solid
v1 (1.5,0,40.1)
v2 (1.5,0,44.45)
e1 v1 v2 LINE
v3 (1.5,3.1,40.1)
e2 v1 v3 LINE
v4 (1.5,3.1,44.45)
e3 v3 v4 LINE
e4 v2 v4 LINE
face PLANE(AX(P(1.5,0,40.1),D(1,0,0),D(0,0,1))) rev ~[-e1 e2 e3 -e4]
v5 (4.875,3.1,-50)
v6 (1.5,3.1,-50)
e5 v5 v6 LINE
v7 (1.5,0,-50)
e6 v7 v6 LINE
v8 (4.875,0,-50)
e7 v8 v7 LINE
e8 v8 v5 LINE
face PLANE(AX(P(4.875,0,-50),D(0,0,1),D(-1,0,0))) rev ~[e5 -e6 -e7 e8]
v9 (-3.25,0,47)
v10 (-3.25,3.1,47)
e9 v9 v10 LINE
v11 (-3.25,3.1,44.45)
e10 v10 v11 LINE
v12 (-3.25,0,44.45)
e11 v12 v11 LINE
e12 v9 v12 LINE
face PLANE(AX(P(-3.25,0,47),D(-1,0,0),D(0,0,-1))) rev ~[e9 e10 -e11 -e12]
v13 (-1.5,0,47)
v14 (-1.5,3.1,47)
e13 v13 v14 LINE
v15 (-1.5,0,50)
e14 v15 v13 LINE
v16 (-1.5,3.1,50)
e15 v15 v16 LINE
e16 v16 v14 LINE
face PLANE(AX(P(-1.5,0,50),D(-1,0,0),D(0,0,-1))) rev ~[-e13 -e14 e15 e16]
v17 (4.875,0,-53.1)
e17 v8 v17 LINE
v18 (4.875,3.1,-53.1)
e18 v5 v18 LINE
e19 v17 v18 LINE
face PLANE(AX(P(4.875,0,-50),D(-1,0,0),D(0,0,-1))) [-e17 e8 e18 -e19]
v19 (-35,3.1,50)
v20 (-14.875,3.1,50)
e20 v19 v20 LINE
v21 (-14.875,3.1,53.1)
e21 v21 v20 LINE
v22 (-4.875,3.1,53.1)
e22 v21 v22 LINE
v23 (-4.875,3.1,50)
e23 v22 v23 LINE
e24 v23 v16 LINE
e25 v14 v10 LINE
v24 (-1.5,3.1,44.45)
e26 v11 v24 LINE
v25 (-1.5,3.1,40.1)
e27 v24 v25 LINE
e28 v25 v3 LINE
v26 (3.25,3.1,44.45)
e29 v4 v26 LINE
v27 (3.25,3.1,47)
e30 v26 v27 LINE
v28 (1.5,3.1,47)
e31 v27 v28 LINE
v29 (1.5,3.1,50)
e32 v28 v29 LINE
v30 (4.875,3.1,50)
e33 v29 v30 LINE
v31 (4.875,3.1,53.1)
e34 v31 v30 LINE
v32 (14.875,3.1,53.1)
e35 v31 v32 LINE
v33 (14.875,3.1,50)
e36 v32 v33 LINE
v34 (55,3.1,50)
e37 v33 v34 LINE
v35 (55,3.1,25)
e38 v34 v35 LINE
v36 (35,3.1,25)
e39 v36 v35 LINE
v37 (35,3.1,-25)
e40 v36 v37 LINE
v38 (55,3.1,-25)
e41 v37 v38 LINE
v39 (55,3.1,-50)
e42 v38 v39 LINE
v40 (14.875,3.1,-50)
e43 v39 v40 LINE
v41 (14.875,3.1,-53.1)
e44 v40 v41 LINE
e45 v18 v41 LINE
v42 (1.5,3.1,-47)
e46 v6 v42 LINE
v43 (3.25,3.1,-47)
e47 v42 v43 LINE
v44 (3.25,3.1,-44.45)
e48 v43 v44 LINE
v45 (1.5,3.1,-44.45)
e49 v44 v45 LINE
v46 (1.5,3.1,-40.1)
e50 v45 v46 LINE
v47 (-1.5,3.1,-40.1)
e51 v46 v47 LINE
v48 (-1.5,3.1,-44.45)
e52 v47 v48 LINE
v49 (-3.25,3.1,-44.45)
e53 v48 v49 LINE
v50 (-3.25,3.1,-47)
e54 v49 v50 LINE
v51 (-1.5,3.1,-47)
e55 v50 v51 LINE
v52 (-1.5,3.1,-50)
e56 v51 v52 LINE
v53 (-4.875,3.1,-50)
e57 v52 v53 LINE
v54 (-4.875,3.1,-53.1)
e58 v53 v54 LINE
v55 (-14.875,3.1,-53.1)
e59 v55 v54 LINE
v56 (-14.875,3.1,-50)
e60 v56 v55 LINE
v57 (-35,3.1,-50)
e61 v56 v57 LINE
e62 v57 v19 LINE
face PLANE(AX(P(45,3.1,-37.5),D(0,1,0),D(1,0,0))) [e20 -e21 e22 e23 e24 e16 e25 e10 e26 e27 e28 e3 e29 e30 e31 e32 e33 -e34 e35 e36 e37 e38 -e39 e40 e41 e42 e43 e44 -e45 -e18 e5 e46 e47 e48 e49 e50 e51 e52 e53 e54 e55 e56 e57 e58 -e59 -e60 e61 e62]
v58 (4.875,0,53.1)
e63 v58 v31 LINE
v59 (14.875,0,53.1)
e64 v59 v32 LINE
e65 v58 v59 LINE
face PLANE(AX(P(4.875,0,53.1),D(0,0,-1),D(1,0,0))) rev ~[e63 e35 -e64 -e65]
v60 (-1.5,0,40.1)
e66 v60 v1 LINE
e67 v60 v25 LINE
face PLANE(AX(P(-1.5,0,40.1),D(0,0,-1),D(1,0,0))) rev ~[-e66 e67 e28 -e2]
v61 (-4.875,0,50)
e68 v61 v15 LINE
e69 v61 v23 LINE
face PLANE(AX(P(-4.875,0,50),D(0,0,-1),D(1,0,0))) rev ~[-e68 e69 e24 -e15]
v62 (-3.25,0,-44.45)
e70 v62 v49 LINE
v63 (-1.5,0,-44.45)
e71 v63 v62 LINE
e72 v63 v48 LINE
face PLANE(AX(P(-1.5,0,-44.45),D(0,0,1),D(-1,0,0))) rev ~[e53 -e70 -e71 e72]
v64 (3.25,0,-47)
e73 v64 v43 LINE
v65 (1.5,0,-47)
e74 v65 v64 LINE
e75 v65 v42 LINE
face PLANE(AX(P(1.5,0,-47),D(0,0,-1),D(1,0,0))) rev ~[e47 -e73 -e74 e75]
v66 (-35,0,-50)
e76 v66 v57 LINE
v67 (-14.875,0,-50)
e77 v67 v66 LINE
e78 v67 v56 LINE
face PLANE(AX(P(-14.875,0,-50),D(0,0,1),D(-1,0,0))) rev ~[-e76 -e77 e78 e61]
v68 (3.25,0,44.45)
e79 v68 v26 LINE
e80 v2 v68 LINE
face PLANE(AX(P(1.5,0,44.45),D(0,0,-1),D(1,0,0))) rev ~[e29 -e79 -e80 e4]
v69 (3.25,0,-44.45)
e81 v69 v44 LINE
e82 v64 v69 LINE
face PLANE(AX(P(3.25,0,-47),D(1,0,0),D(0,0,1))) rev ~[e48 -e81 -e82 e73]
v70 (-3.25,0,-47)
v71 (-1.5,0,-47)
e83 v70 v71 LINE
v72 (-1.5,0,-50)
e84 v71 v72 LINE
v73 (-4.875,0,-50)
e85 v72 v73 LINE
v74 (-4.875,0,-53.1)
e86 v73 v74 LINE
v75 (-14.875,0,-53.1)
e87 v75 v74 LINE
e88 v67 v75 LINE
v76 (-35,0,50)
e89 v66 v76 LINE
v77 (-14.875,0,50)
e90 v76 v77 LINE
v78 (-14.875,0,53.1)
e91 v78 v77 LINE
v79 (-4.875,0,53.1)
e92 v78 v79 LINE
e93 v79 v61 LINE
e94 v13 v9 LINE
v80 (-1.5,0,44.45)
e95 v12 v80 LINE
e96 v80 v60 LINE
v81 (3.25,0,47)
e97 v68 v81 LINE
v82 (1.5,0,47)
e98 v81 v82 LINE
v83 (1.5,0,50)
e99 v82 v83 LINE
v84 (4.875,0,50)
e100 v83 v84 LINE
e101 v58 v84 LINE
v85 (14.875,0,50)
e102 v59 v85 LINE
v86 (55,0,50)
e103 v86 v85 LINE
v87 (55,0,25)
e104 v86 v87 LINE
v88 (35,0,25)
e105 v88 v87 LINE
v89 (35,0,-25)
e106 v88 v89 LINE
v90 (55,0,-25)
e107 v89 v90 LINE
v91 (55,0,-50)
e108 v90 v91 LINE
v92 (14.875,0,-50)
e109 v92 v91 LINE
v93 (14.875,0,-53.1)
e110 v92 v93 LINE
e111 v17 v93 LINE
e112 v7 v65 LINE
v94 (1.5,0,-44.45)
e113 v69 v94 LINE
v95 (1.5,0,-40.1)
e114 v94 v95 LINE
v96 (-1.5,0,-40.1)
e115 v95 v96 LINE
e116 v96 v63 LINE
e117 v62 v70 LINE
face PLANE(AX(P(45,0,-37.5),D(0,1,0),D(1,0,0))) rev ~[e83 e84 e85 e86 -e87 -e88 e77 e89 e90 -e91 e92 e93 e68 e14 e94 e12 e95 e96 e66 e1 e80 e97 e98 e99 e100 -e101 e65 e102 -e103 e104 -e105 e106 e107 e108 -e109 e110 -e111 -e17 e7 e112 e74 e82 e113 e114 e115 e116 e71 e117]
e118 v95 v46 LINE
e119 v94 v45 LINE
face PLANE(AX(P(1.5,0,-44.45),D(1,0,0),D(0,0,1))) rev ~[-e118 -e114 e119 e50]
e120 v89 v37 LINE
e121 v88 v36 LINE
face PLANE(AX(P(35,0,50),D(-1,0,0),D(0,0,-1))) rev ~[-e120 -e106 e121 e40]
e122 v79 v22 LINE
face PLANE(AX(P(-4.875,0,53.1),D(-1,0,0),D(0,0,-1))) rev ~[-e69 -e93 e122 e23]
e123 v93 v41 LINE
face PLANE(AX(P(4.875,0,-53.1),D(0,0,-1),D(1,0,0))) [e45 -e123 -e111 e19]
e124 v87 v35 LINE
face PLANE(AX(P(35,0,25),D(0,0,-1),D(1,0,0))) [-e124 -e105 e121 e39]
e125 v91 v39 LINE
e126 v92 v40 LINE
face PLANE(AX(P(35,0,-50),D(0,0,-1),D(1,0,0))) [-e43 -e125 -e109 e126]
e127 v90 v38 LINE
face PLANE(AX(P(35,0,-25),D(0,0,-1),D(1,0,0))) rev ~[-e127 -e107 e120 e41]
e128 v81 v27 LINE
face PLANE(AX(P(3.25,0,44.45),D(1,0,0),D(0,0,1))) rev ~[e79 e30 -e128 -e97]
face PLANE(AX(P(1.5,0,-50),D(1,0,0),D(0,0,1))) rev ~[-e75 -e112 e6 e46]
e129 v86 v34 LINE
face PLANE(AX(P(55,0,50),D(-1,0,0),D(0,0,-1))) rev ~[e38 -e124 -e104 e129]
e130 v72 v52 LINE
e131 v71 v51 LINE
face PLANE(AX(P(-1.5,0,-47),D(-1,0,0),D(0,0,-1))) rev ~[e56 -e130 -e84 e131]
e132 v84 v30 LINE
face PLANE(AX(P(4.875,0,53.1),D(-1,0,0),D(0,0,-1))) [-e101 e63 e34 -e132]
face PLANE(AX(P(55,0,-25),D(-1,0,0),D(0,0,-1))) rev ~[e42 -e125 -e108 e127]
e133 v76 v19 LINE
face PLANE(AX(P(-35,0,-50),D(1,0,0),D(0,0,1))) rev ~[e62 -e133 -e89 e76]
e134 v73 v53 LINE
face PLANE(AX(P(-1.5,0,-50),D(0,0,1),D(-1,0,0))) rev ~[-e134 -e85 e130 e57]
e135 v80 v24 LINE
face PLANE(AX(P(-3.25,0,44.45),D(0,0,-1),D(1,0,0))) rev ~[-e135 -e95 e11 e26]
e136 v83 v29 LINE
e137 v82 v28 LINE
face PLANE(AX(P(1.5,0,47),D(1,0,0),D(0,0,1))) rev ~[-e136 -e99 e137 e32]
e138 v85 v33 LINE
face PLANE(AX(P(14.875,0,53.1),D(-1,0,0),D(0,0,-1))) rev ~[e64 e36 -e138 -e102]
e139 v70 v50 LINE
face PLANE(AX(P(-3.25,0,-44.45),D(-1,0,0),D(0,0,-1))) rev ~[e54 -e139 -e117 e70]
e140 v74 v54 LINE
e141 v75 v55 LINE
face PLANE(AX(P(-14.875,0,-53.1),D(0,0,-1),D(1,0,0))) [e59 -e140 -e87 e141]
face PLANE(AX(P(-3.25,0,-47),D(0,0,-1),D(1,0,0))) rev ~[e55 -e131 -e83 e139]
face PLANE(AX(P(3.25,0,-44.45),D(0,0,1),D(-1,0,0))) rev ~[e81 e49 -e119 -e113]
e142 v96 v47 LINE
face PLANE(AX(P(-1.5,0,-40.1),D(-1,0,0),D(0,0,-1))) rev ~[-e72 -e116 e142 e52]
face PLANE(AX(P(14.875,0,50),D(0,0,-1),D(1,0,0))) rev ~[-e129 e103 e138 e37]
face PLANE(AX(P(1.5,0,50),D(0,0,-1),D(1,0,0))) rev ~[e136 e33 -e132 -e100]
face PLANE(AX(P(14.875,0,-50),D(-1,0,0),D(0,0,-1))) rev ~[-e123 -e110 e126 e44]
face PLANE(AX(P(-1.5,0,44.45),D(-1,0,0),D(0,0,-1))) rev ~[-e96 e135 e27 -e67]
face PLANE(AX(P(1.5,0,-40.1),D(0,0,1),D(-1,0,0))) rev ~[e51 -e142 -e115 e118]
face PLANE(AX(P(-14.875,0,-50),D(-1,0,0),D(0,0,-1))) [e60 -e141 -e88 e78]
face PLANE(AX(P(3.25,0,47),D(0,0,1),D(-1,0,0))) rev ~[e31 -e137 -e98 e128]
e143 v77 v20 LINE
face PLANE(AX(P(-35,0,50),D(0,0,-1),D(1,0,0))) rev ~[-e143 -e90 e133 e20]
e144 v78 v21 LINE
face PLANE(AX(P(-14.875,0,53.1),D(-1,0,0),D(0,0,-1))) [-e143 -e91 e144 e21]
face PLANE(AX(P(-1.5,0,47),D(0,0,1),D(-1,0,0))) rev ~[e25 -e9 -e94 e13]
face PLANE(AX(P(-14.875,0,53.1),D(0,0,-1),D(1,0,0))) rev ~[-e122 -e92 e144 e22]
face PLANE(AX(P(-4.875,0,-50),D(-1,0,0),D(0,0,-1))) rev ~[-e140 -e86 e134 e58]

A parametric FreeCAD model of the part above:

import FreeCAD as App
import Part
import Sketcher
from FreeCAD import Vector
Q = App.Units.Quantity

doc = App.newDocument("Part")
body = doc.addObject("PartDesign::Body", "Body")

# Sketch on XZ plane
sketch1 = doc.addObject("Sketcher::SketchObject", "Sketch")
body.addObject(sketch1)
sketch1.AttachmentSupport = (doc.XZ_Plane, [""])
sketch1.MapMode = "FlatFace"
sketch1.addGeometry(Part.LineSegment(Vector(-35, -50, 0), Vector(-35, 50, 0)), False)
sketch1.addGeometry(Part.LineSegment(Vector(-35, 50, 0), Vector(-14.9, 50, 0)), False)
sketch1.addGeometry(Part.LineSegment(Vector(-14.9, 50, 0), Vector(-14.9, 53.1, 0)), False)
sketch1.addGeometry(Part.LineSegment(Vector(-14.9, 53.1, 0), Vector(-4.9, 53.1, 0)), False)
sketch1.addGeometry(Part.LineSegment(Vector(-4.9, 53.1, 0), Vector(-4.9, 50, 0)), False)
sketch1.addGeometry(Part.LineSegment(Vector(-4.9, 50, 0), Vector(-1.5, 50, 0)), False)
sketch1.addGeometry(Part.LineSegment(Vector(-1.5, 50, 0), Vector(-1.5, 47, 0)), False)
sketch1.addGeometry(Part.LineSegment(Vector(-1.5, 47, 0), Vector(-3.2, 47, 0)), False)
sketch1.addGeometry(Part.LineSegment(Vector(-3.2, 47, 0), Vector(-3.2, 44.5, 0)), False)
sketch1.addGeometry(Part.LineSegment(Vector(-3.2, 44.5, 0), Vector(-1.5, 44.5, 0)), False)
sketch1.addGeometry(Part.LineSegment(Vector(-1.5, 44.5, 0), Vector(-1.5, 40.1, 0)), False)
sketch1.addGeometry(Part.LineSegment(Vector(-1.5, 40.1, 0), Vector(1.5, 40.1, 0)), False)
sketch1.addGeometry(Part.LineSegment(Vector(1.5, 40.1, 0), Vector(1.5, 44.5, 0)), False)
sketch1.addGeometry(Part.LineSegment(Vector(1.5, 44.5, 0), Vector(3.2, 44.5, 0)), False)
sketch1.addGeometry(Part.LineSegment(Vector(3.2, 44.5, 0), Vector(3.2, 47, 0)), False)
sketch1.addGeometry(Part.LineSegment(Vector(3.2, 47, 0), Vector(1.5, 47, 0)), False)
sketch1.addGeometry(Part.LineSegment(Vector(1.5, 47, 0), Vector(1.5, 50, 0)), False)
sketch1.addGeometry(Part.LineSegment(Vector(1.5, 50, 0), Vector(4.9, 50, 0)), False)
sketch1.addGeometry(Part.LineSegment(Vector(4.9, 50, 0), Vector(4.9, 53.1, 0)), False)
sketch1.addGeometry(Part.LineSegment(Vector(4.9, 53.1, 0), Vector(14.9, 53.1, 0)), False)
sketch1.addGeometry(Part.LineSegment(Vector(14.9, 53.1, 0), Vector(14.9, 50, 0)), False)
sketch1.addGeometry(Part.LineSegment(Vector(14.9, 50, 0), Vector(35, 50, 0)), False)
sketch1.addGeometry(Part.LineSegment(Vector(35, 50, 0), Vector(35, -50, 0)), False)
sketch1.addGeometry(Part.LineSegment(Vector(35, -50, 0), Vector(14.9, -50, 0)), False)
sketch1.addGeometry(Part.LineSegment(Vector(14.9, -50, 0), Vector(14.9, -53.1, 0)), False)
sketch1.addGeometry(Part.LineSegment(Vector(14.9, -53.1, 0), Vector(4.9, -53.1, 0)), False)
sketch1.addGeometry(Part.LineSegment(Vector(4.9, -53.1, 0), Vector(4.9, -50, 0)), False)
sketch1.addGeometry(Part.LineSegment(Vector(4.9, -50, 0), Vector(1.5, -50, 0)), False)
sketch1.addGeometry(Part.LineSegment(Vector(1.5, -50, 0), Vector(1.5, -47, 0)), False)
sketch1.addGeometry(Part.LineSegment(Vector(1.5, -47, 0), Vector(3.2, -47, 0)), False)
sketch1.addGeometry(Part.LineSegment(Vector(3.2, -47, 0), Vector(3.2, -44.5, 0)), False)
sketch1.addGeometry(Part.LineSegment(Vector(3.2, -44.5, 0), Vector(1.5, -44.5, 0)), False)
sketch1.addGeometry(Part.LineSegment(Vector(1.5, -44.5, 0), Vector(1.5, -40.1, 0)), False)
sketch1.addGeometry(Part.LineSegment(Vector(1.5, -40.1, 0), Vector(-1.5, -40.1, 0)), False)
sketch1.addGeometry(Part.LineSegment(Vector(-1.5, -40.1, 0), Vector(-1.5, -44.5, 0)), False)
sketch1.addGeometry(Part.LineSegment(Vector(-1.5, -44.5, 0), Vector(-3.2, -44.5, 0)), False)
sketch1.addGeometry(Part.LineSegment(Vector(-3.2, -44.5, 0), Vector(-3.2, -47, 0)), False)
sketch1.addGeometry(Part.LineSegment(Vector(-3.2, -47, 0), Vector(-1.5, -47, 0)), False)
sketch1.addGeometry(Part.LineSegment(Vector(-1.5, -47, 0), Vector(-1.5, -50, 0)), False)
sketch1.addGeometry(Part.LineSegment(Vector(-1.5, -50, 0), Vector(-4.9, -50, 0)), False)
sketch1.addGeometry(Part.LineSegment(Vector(-4.9, -50, 0), Vector(-4.9, -53.1, 0)), False)
sketch1.addGeometry(Part.LineSegment(Vector(-4.9, -53.1, 0), Vector(-14.9, -53.1, 0)), False)
sketch1.addGeometry(Part.LineSegment(Vector(-14.9, -53.1, 0), Vector(-14.9, -50, 0)), False)
sketch1.addGeometry(Part.LineSegment(Vector(-14.9, -50, 0), Vector(-35, -50, 0)), False)
sketch1.addConstraint(Sketcher.Constraint("Coincident", 0, 2, 1, 1))
sketch1.addConstraint(Sketcher.Constraint("Coincident", 1, 2, 2, 1))
sketch1.addConstraint(Sketcher.Constraint("Coincident", 2, 2, 3, 1))
sketch1.addConstraint(Sketcher.Constraint("Coincident", 3, 2, 4, 1))
sketch1.addConstraint(Sketcher.Constraint("Coincident", 4, 2, 5, 1))
sketch1.addConstraint(Sketcher.Constraint("Coincident", 5, 2, 6, 1))
sketch1.addConstraint(Sketcher.Constraint("Coincident", 6, 2, 7, 1))
sketch1.addConstraint(Sketcher.Constraint("Coincident", 7, 2, 8, 1))
sketch1.addConstraint(Sketcher.Constraint("Coincident", 8, 2, 9, 1))
sketch1.addConstraint(Sketcher.Constraint("Coincident", 9, 2, 10, 1))
sketch1.addConstraint(Sketcher.Constraint("Coincident", 10, 2, 11, 1))
sketch1.addConstraint(Sketcher.Constraint("Coincident", 11, 2, 12, 1))
sketch1.addConstraint(Sketcher.Constraint("Coincident", 12, 2, 13, 1))
sketch1.addConstraint(Sketcher.Constraint("Coincident", 13, 2, 14, 1))
sketch1.addConstraint(Sketcher.Constraint("Coincident", 14, 2, 15, 1))
sketch1.addConstraint(Sketcher.Constraint("Coincident", 15, 2, 16, 1))
sketch1.addConstraint(Sketcher.Constraint("Coincident", 16, 2, 17, 1))
sketch1.addConstraint(Sketcher.Constraint("Coincident", 17, 2, 18, 1))
sketch1.addConstraint(Sketcher.Constraint("Coincident", 18, 2, 19, 1))
sketch1.addConstraint(Sketcher.Constraint("Coincident", 19, 2, 20, 1))
sketch1.addConstraint(Sketcher.Constraint("Coincident", 20, 2, 21, 1))
sketch1.addConstraint(Sketcher.Constraint("Coincident", 21, 2, 22, 1))
sketch1.addConstraint(Sketcher.Constraint("Coincident", 22, 2, 23, 1))
sketch1.addConstraint(Sketcher.Constraint("Coincident", 23, 2, 24, 1))
sketch1.addConstraint(Sketcher.Constraint("Coincident", 24, 2, 25, 1))
sketch1.addConstraint(Sketcher.Constraint("Coincident", 25, 2, 26, 1))
sketch1.addConstraint(Sketcher.Constraint("Coincident", 26, 2, 27, 1))
sketch1.addConstraint(Sketcher.Constraint("Coincident", 27, 2, 28, 1))
sketch1.addConstraint(Sketcher.Constraint("Coincident", 28, 2, 29, 1))
sketch1.addConstraint(Sketcher.Constraint("Coincident", 29, 2, 30, 1))
sketch1.addConstraint(Sketcher.Constraint("Coincident", 30, 2, 31, 1))
sketch1.addConstraint(Sketcher.Constraint("Coincident", 31, 2, 32, 1))
sketch1.addConstraint(Sketcher.Constraint("Coincident", 32, 2, 33, 1))
sketch1.addConstraint(Sketcher.Constraint("Coincident", 33, 2, 34, 1))
sketch1.addConstraint(Sketcher.Constraint("Coincident", 34, 2, 35, 1))
sketch1.addConstraint(Sketcher.Constraint("Coincident", 35, 2, 36, 1))
sketch1.addConstraint(Sketcher.Constraint("Coincident", 36, 2, 37, 1))
sketch1.addConstraint(Sketcher.Constraint("Coincident", 37, 2, 38, 1))
sketch1.addConstraint(Sketcher.Constraint("Coincident", 38, 2, 39, 1))
sketch1.addConstraint(Sketcher.Constraint("Coincident", 39, 2, 40, 1))
sketch1.addConstraint(Sketcher.Constraint("Coincident", 40, 2, 41, 1))
sketch1.addConstraint(Sketcher.Constraint("Coincident", 41, 2, 42, 1))
sketch1.addConstraint(Sketcher.Constraint("Coincident", 42, 2, 43, 1))
sketch1.addConstraint(Sketcher.Constraint("Coincident", 43, 2, 0, 1))
sketch1.addConstraint(Sketcher.Constraint("Vertical", 0))
sketch1.addConstraint(Sketcher.Constraint("Horizontal", 1))
sketch1.addConstraint(Sketcher.Constraint("Vertical", 2))
sketch1.addConstraint(Sketcher.Constraint("Horizontal", 3))
sketch1.addConstraint(Sketcher.Constraint("Vertical", 4))
sketch1.addConstraint(Sketcher.Constraint("Horizontal", 5))
sketch1.addConstraint(Sketcher.Constraint("Vertical", 6))
sketch1.addConstraint(Sketcher.Constraint("Horizontal", 7))
sketch1.addConstraint(Sketcher.Constraint("Vertical", 8))
sketch1.addConstraint(Sketcher.Constraint("Horizontal", 9))
sketch1.addConstraint(Sketcher.Constraint("Vertical", 10))
sketch1.addConstraint(Sketcher.Constraint("Horizontal", 11))
sketch1.addConstraint(Sketcher.Constraint("Vertical", 12))
sketch1.addConstraint(Sketcher.Constraint("Horizontal", 13))
sketch1.addConstraint(Sketcher.Constraint("Vertical", 14))
sketch1.addConstraint(Sketcher.Constraint("Horizontal", 15))
sketch1.addConstraint(Sketcher.Constraint("Vertical", 16))
sketch1.addConstraint(Sketcher.Constraint("Horizontal", 17))
sketch1.addConstraint(Sketcher.Constraint("Vertical", 18))
sketch1.addConstraint(Sketcher.Constraint("Horizontal", 19))
sketch1.addConstraint(Sketcher.Constraint("Vertical", 20))
sketch1.addConstraint(Sketcher.Constraint("Horizontal", 21))
sketch1.addConstraint(Sketcher.Constraint("Vertical", 22))
sketch1.addConstraint(Sketcher.Constraint("Horizontal", 23))
sketch1.addConstraint(Sketcher.Constraint("Vertical", 24))
sketch1.addConstraint(Sketcher.Constraint("Horizontal", 25))
sketch1.addConstraint(Sketcher.Constraint("Vertical", 26))
sketch1.addConstraint(Sketcher.Constraint("Horizontal", 27))
sketch1.addConstraint(Sketcher.Constraint("Vertical", 28))
sketch1.addConstraint(Sketcher.Constraint("Horizontal", 29))
sketch1.addConstraint(Sketcher.Constraint("Vertical", 30))
sketch1.addConstraint(Sketcher.Constraint("Horizontal", 31))
sketch1.addConstraint(Sketcher.Constraint("Vertical", 32))
sketch1.addConstraint(Sketcher.Constraint("Horizontal", 33))
sketch1.addConstraint(Sketcher.Constraint("Vertical", 34))
sketch1.addConstraint(Sketcher.Constraint("Horizontal", 35))
sketch1.addConstraint(Sketcher.Constraint("Vertical", 36))
sketch1.addConstraint(Sketcher.Constraint("Horizontal", 37))
sketch1.addConstraint(Sketcher.Constraint("Vertical", 38))
sketch1.addConstraint(Sketcher.Constraint("Horizontal", 39))
sketch1.addConstraint(Sketcher.Constraint("Vertical", 40))
sketch1.addConstraint(Sketcher.Constraint("Horizontal", 41))
sketch1.addConstraint(Sketcher.Constraint("Vertical", 42))
sketch1.addConstraint(Sketcher.Constraint("Horizontal", 43))
sketch1.addConstraint(Sketcher.Constraint("Symmetric", 0, 2, 22, 2, -1, 1))
sketch1.addConstraint(Sketcher.Constraint("Symmetric", 2, 2, 24, 2, -1, 1))
sketch1.addConstraint(Sketcher.Constraint("Symmetric", 4, 2, 26, 2, -1, 1))
sketch1.addConstraint(Sketcher.Constraint("Symmetric", 6, 2, 28, 2, -1, 1))
sketch1.addConstraint(Sketcher.Constraint("Symmetric", 8, 2, 30, 2, -1, 1))
sketch1.addConstraint(Sketcher.Constraint("Symmetric", 10, 2, 32, 2, -1, 1))
sketch1.addConstraint(Sketcher.Constraint("Symmetric", 12, 2, 34, 2, -1, 1))
sketch1.addConstraint(Sketcher.Constraint("Symmetric", 14, 2, 36, 2, -1, 1))
sketch1.addConstraint(Sketcher.Constraint("Symmetric", 16, 2, 38, 2, -1, 1))
sketch1.addConstraint(Sketcher.Constraint("Symmetric", 18, 2, 40, 2, -1, 1))
sketch1.addConstraint(Sketcher.Constraint("Symmetric", 20, 2, 42, 2, -1, 1))
sketch1.addConstraint(Sketcher.Constraint("Symmetric", 9, 2, 12, 2, -2))
sketch1.addConstraint(Sketcher.Constraint("Symmetric", 7, 2, 14, 2, -2))
sketch1.addConstraint(Sketcher.Constraint("Symmetric", 5, 2, 16, 2, -2))
sketch1.addConstraint(Sketcher.Constraint("Symmetric", 3, 2, 18, 2, -2))
sketch1.addConstraint(Sketcher.Constraint("Symmetric", 1, 2, 20, 2, -2))
sketch1.addConstraint(Sketcher.Constraint("Horizontal", 1, 2, 4, 2))
sketch1.addConstraint(Sketcher.Constraint("Vertical", 6, 2, 9, 2))
sketch1.addConstraint(Sketcher.Constraint("Equal", 33, 6))
sketch1.addConstraint(Sketcher.Constraint("DistanceX", 3, 1, 3, 2, Q("10 mm")))
sketch1.addConstraint(Sketcher.Constraint("DistanceX", 11, 1, 11, 2, Q("3 mm")))
sketch1.addConstraint(Sketcher.Constraint("DistanceY", 0, 1, 0, 2, Q("100 mm")))
sketch1.addConstraint(Sketcher.Constraint("DistanceY", 2, 1, 2, 2, Q("3.1 mm")))
sketch1.addConstraint(Sketcher.Constraint("DistanceX", 0, 2, -1, 1, Q("35 mm")))
sketch1.addConstraint(Sketcher.Constraint("DistanceX", 7, 2, 7, 1, Q("1.75 mm")))
sketch1.addConstraint(Sketcher.Constraint("DistanceY", 8, 2, 8, 1, Q("2.55 mm")))
sketch1.addConstraint(Sketcher.Constraint("DistanceY", 10, 2, 10, 1, Q("4.35 mm")))
sketch1.addConstraint(Sketcher.Constraint("DistanceX", 1, 1, 1, 2, Q("20.125 mm")))
pad1 = doc.addObject("PartDesign::Pad", "Pad")
body.addObject(pad1)
pad1.Profile = sketch1
pad1.Length = 3.1
pad1.Reversed = True

# Sketch on XZ plane
sketch2 = doc.addObject("Sketcher::SketchObject", "Sketch001")
body.addObject(sketch2)
sketch2.AttachmentSupport = (doc.XZ_Plane, [""])
sketch2.MapMode = "FlatFace"
sketch2.addGeometry(Part.LineSegment(Vector(35, -50, 0), Vector(35, -25, 0)), False)
sketch2.addGeometry(Part.LineSegment(Vector(35, -25, 0), Vector(55, -25, 0)), False)
sketch2.addGeometry(Part.LineSegment(Vector(55, -25, 0), Vector(55, -50, 0)), False)
sketch2.addGeometry(Part.LineSegment(Vector(55, -50, 0), Vector(35, -50, 0)), False)
sketch2.addGeometry(Part.LineSegment(Vector(35, 25, 0), Vector(35, 50, 0)), False)
sketch2.addGeometry(Part.LineSegment(Vector(35, 50, 0), Vector(55, 50, 0)), False)
sketch2.addGeometry(Part.LineSegment(Vector(55, 50, 0), Vector(55, 25, 0)), False)
sketch2.addGeometry(Part.LineSegment(Vector(55, 25, 0), Vector(35, 25, 0)), False)
sketch2.addConstraint(Sketcher.Constraint("Coincident", 0, 2, 1, 1))
sketch2.addConstraint(Sketcher.Constraint("Coincident", 1, 2, 2, 1))
sketch2.addConstraint(Sketcher.Constraint("Coincident", 2, 2, 3, 1))
sketch2.addConstraint(Sketcher.Constraint("Coincident", 3, 2, 0, 1))
sketch2.addConstraint(Sketcher.Constraint("Coincident", 4, 2, 5, 1))
sketch2.addConstraint(Sketcher.Constraint("Coincident", 5, 2, 6, 1))
sketch2.addConstraint(Sketcher.Constraint("Coincident", 6, 2, 7, 1))
sketch2.addConstraint(Sketcher.Constraint("Coincident", 7, 2, 4, 1))
sketch2.addConstraint(Sketcher.Constraint("Vertical", 0))
sketch2.addConstraint(Sketcher.Constraint("Horizontal", 1))
sketch2.addConstraint(Sketcher.Constraint("Vertical", 2))
sketch2.addConstraint(Sketcher.Constraint("Horizontal", 3))
sketch2.addConstraint(Sketcher.Constraint("Vertical", 4))
sketch2.addConstraint(Sketcher.Constraint("Horizontal", 5))
sketch2.addConstraint(Sketcher.Constraint("Vertical", 6))
sketch2.addConstraint(Sketcher.Constraint("Horizontal", 7))
sketch2.addConstraint(Sketcher.Constraint("Symmetric", 3, 2, 4, 2, -1))
sketch2.addConstraint(Sketcher.Constraint("Symmetric", 1, 2, 6, 2, -1))
sketch2.addConstraint(Sketcher.Constraint("DistanceX", 1, 1, 1, 2, Q("20 mm")))
sketch2.addConstraint(Sketcher.Constraint("DistanceY", 0, 1, 0, 2, Q("25 mm")))
sketch2.addConstraint(Sketcher.Constraint("DistanceX", -1, 1, 0, 2, Q("35 mm")))
sketch2.addConstraint(Sketcher.Constraint("DistanceY", 0, 2, -1, 1, Q("25 mm")))
pad2 = doc.addObject("PartDesign::Pad", "Pad001")
body.addObject(pad2)
pad2.Profile = sketch2
pad2.Length = 3.1
pad2.Reversed = True

doc.recompute()
